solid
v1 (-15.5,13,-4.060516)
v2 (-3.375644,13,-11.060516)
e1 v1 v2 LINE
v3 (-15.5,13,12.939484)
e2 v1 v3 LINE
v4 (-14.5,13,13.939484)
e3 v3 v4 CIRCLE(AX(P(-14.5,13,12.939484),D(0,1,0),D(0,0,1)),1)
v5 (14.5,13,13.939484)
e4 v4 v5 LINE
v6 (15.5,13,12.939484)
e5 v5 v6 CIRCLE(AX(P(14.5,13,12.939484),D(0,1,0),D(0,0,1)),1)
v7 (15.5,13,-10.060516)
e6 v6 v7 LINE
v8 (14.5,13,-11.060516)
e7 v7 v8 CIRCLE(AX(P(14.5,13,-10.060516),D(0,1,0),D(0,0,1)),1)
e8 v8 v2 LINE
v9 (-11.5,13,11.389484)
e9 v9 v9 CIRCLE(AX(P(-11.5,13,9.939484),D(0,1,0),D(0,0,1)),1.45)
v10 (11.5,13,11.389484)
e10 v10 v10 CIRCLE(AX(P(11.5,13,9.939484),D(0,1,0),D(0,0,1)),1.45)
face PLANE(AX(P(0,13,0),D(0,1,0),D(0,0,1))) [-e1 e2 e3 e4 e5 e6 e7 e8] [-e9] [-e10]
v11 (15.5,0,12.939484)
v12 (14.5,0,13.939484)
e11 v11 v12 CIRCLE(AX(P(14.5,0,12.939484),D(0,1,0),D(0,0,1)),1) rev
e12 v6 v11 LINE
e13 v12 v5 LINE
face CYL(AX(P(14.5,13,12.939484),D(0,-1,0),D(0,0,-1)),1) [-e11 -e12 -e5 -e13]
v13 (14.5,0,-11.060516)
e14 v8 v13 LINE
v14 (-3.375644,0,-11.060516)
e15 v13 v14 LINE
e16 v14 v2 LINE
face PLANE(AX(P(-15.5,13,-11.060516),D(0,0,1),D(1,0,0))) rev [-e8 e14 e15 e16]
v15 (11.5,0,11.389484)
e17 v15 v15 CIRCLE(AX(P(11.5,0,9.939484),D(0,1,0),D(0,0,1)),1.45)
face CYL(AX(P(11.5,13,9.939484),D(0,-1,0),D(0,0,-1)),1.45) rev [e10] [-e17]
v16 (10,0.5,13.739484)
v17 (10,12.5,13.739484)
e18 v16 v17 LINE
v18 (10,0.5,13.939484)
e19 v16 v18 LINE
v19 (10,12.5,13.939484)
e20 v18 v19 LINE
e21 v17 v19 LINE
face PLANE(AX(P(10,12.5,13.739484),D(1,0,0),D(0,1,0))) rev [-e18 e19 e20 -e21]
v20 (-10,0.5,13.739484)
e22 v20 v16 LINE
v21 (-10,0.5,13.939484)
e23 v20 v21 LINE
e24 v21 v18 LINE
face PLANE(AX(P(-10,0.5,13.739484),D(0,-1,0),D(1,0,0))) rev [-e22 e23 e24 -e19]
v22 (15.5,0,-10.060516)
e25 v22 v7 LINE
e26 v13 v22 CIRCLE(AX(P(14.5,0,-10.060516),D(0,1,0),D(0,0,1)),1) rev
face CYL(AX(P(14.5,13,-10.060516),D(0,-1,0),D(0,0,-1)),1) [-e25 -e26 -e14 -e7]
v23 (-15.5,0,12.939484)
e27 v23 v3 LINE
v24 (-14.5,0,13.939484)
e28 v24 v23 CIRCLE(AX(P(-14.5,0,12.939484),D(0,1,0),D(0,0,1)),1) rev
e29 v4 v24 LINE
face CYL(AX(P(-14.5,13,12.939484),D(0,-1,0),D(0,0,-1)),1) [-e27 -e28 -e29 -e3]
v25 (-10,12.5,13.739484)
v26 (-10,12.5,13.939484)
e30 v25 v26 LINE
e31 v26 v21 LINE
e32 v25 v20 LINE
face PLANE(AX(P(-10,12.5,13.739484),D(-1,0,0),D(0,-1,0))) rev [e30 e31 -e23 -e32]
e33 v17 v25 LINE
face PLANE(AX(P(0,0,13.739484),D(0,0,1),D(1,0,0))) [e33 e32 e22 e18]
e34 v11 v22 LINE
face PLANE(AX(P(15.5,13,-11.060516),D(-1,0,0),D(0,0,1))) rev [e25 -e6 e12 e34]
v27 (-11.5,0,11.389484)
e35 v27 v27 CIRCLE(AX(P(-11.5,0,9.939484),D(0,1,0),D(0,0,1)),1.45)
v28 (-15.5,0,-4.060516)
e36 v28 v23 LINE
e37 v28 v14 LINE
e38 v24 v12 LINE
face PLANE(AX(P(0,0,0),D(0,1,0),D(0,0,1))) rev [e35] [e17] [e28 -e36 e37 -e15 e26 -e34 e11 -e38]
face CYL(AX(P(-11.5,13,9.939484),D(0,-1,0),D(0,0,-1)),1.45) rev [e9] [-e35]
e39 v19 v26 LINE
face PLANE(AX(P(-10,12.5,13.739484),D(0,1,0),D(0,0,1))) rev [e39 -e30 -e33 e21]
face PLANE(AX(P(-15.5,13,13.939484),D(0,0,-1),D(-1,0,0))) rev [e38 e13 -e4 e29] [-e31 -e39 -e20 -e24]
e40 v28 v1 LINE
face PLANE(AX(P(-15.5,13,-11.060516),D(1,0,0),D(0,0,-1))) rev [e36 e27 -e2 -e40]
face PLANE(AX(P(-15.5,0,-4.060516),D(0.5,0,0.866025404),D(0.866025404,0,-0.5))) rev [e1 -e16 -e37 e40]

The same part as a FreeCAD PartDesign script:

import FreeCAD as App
import Part
import Sketcher
Q = App.Units.Quantity


def edges_at(feature, points):
    """Names of the edges that pass closest to the given points."""
    edges = feature.Shape.Edges
    near = lambda p: min(range(len(edges)), key=lambda i: edges[i].distToShape(Part.Vertex(*p))[0])
    return sorted({f"Edge{near(p) + 1}" for p in points})

doc = App.newDocument("Part")
body = doc.addObject("PartDesign::Body", "Body")

# Sketch on XZ plane
sketch1 = body.newObject("Sketcher::SketchObject", "Sketch")
sketch1.AttachmentSupport = (doc.getObject("XZ_Plane"), [""])
sketch1.MapMode = "FlatFace"
sketch1.addGeometry([
    Part.LineSegment(App.Vector(-15.5, -11.1, 0), App.Vector(-15.5, 13.9, 0)),  # 0
    Part.LineSegment(App.Vector(-15.5, 13.9, 0), App.Vector(15.5, 13.9, 0)),  # 1
    Part.LineSegment(App.Vector(15.5, 13.9, 0), App.Vector(15.5, -11.1, 0)),  # 2
    Part.LineSegment(App.Vector(15.5, -11.1, 0), App.Vector(-15.5, -11.1, 0)),  # 3
    Part.Circle(App.Vector(-11.5, 9.9, 0), App.Vector(0, 0, 1), 1.4),  # 4
    Part.Circle(App.Vector(11.5, 9.9, 0), App.Vector(0, 0, 1), 1.4),  # 5
], False)
sketch1.addConstraint([
    Sketcher.Constraint("Coincident", 0, 2, 1, 1),
    Sketcher.Constraint("Coincident", 1, 2, 2, 1),
    Sketcher.Constraint("Coincident", 2, 2, 3, 1),
    Sketcher.Constraint("Coincident", 3, 2, 0, 1),
    Sketcher.Constraint("Vertical", 0),
    Sketcher.Constraint("Horizontal", 1),
    Sketcher.Constraint("Vertical", 2),
    Sketcher.Constraint("Horizontal", 3),
    Sketcher.Constraint("Equal", 4, 5),
    Sketcher.Constraint("Symmetric", 4, 3, 5, 3, -2),
    Sketcher.Constraint("Diameter", 4, 2.9),
    Sketcher.Constraint("DistanceX", 1, 1, 1, 2, 31.0),
    Sketcher.Constraint("DistanceY", 0, 1, 0, 2, 25.0),
    Sketcher.Constraint("DistanceX", 4, 3, 5, 3, 23.0),
    Sketcher.Constraint("DistanceX", 0, 2, 4, 3, 4.0),
    Sketcher.Constraint("DistanceY", 4, 3, 0, 2, 4.0),
    Sketcher.Constraint("DistanceY", -1, 1, 4, 3, 9.939484),
])
pad1 = body.newObject("PartDesign::Pad", "Pad")
pad1.Profile = sketch1
pad1.Length = 13
pad1.Reversed = True

# Sketch on XY plane
sketch2 = body.newObject("Sketcher::SketchObject", "Sketch001")
sketch2.AttachmentSupport = (doc.getObject("XY_Plane"), [""])
sketch2.MapMode = "FlatFace"
sketch2.AttachmentOffset = App.Placement(App.Vector(0, 0, 13.939484), App.Rotation())
sketch2.addGeometry([
    Part.LineSegment(App.Vector(-10, 12, 0), App.Vector(-10, 0, 0)),
    Part.LineSegment(App.Vector(-10, 0, 0), App.Vector(10, 0, 0)),
    Part.LineSegment(App.Vector(10, 0, 0), App.Vector(10, 12, 0)),
    Part.LineSegment(App.Vector(10, 12, 0), App.Vector(-10, 12, 0)),
], False)
sketch2.addConstraint([
    Sketcher.Constraint("Coincident", 0, 2, 1, 1),
    Sketcher.Constraint("Coincident", 1, 2, 2, 1),
    Sketcher.Constraint("Coincident", 2, 2, 3, 1),
    Sketcher.Constraint("Coincident", 3, 2, 0, 1),
    Sketcher.Constraint("Vertical", 0),
    Sketcher.Constraint("Horizontal", 1),
    Sketcher.Constraint("Vertical", 2),
    Sketcher.Constraint("Horizontal", 3),
    Sketcher.Constraint("DistanceX", 1, 1, 1, 2, 20.0),
    Sketcher.Constraint("DistanceY", 0, 2, 0, 1, 12.0),
    Sketcher.Constraint("DistanceX", 0, 2, -1, 1, 10.0),
    Sketcher.Constraint("DistanceY", -1, 1, 0, 2, 0.5),
])
pocket1 = body.newObject("PartDesign::Pocket", "Pocket")
pocket1.Profile = sketch2
pocket1.Length = 0.2

# Sketch on XZ plane
sketch3 = body.newObject("Sketcher::SketchObject", "Sketch002")
sketch3.AttachmentSupport = (doc.getObject("XZ_Plane"), [""])
sketch3.MapMode = "FlatFace"
sketch3.AttachmentOffset = App.Placement(App.Vector(0, 0, -13), App.Rotation())
sketch3.addGeometry([
    Part.LineSegment(App.Vector(-16, -4, 0), App.Vector(-3, -11, 0)),
    Part.LineSegment(App.Vector(-3, -11, 0), App.Vector(-16, -11, 0)),
    Part.LineSegment(App.Vector(-16, -11, 0), App.Vector(-16, -4, 0)),
], False)
sketch3.addConstraint([
    Sketcher.Constraint("Coincident", 0, 2, 1, 1),
    Sketcher.Constraint("Coincident", 1, 2, 2, 1),
    Sketcher.Constraint("Coincident", 2, 2, 0, 1),
    Sketcher.Constraint("Horizontal", 1),
    Sketcher.Constraint("Vertical", 2),
    Sketcher.Constraint("DistanceY", 2, 1, 2, 2, 7.0),
    Sketcher.Constraint("Angle", 0, Q("-30 deg")),
    Sketcher.Constraint("DistanceX", 1, 2, -1, 1, 15.5),
    Sketcher.Constraint("DistanceY", 0, 2, -1, 1, 11.060516),
])
pocket2 = body.newObject("PartDesign::Pocket", "Pocket001")
pocket2.Profile = sketch3
pocket2.Type = "ThroughAll"
pocket2.Reversed = True
doc.recompute()

fillet = body.newObject("PartDesign::Fillet", "Fillet")
fillet.Base = (pocket2, edges_at(pocket2, [(15.5, 6.5, 13.939), (-15.5, 6.5, 13.939), (15.5, 6.5, -11.061)]))
fillet.Radius = 1

doc.recompute()
